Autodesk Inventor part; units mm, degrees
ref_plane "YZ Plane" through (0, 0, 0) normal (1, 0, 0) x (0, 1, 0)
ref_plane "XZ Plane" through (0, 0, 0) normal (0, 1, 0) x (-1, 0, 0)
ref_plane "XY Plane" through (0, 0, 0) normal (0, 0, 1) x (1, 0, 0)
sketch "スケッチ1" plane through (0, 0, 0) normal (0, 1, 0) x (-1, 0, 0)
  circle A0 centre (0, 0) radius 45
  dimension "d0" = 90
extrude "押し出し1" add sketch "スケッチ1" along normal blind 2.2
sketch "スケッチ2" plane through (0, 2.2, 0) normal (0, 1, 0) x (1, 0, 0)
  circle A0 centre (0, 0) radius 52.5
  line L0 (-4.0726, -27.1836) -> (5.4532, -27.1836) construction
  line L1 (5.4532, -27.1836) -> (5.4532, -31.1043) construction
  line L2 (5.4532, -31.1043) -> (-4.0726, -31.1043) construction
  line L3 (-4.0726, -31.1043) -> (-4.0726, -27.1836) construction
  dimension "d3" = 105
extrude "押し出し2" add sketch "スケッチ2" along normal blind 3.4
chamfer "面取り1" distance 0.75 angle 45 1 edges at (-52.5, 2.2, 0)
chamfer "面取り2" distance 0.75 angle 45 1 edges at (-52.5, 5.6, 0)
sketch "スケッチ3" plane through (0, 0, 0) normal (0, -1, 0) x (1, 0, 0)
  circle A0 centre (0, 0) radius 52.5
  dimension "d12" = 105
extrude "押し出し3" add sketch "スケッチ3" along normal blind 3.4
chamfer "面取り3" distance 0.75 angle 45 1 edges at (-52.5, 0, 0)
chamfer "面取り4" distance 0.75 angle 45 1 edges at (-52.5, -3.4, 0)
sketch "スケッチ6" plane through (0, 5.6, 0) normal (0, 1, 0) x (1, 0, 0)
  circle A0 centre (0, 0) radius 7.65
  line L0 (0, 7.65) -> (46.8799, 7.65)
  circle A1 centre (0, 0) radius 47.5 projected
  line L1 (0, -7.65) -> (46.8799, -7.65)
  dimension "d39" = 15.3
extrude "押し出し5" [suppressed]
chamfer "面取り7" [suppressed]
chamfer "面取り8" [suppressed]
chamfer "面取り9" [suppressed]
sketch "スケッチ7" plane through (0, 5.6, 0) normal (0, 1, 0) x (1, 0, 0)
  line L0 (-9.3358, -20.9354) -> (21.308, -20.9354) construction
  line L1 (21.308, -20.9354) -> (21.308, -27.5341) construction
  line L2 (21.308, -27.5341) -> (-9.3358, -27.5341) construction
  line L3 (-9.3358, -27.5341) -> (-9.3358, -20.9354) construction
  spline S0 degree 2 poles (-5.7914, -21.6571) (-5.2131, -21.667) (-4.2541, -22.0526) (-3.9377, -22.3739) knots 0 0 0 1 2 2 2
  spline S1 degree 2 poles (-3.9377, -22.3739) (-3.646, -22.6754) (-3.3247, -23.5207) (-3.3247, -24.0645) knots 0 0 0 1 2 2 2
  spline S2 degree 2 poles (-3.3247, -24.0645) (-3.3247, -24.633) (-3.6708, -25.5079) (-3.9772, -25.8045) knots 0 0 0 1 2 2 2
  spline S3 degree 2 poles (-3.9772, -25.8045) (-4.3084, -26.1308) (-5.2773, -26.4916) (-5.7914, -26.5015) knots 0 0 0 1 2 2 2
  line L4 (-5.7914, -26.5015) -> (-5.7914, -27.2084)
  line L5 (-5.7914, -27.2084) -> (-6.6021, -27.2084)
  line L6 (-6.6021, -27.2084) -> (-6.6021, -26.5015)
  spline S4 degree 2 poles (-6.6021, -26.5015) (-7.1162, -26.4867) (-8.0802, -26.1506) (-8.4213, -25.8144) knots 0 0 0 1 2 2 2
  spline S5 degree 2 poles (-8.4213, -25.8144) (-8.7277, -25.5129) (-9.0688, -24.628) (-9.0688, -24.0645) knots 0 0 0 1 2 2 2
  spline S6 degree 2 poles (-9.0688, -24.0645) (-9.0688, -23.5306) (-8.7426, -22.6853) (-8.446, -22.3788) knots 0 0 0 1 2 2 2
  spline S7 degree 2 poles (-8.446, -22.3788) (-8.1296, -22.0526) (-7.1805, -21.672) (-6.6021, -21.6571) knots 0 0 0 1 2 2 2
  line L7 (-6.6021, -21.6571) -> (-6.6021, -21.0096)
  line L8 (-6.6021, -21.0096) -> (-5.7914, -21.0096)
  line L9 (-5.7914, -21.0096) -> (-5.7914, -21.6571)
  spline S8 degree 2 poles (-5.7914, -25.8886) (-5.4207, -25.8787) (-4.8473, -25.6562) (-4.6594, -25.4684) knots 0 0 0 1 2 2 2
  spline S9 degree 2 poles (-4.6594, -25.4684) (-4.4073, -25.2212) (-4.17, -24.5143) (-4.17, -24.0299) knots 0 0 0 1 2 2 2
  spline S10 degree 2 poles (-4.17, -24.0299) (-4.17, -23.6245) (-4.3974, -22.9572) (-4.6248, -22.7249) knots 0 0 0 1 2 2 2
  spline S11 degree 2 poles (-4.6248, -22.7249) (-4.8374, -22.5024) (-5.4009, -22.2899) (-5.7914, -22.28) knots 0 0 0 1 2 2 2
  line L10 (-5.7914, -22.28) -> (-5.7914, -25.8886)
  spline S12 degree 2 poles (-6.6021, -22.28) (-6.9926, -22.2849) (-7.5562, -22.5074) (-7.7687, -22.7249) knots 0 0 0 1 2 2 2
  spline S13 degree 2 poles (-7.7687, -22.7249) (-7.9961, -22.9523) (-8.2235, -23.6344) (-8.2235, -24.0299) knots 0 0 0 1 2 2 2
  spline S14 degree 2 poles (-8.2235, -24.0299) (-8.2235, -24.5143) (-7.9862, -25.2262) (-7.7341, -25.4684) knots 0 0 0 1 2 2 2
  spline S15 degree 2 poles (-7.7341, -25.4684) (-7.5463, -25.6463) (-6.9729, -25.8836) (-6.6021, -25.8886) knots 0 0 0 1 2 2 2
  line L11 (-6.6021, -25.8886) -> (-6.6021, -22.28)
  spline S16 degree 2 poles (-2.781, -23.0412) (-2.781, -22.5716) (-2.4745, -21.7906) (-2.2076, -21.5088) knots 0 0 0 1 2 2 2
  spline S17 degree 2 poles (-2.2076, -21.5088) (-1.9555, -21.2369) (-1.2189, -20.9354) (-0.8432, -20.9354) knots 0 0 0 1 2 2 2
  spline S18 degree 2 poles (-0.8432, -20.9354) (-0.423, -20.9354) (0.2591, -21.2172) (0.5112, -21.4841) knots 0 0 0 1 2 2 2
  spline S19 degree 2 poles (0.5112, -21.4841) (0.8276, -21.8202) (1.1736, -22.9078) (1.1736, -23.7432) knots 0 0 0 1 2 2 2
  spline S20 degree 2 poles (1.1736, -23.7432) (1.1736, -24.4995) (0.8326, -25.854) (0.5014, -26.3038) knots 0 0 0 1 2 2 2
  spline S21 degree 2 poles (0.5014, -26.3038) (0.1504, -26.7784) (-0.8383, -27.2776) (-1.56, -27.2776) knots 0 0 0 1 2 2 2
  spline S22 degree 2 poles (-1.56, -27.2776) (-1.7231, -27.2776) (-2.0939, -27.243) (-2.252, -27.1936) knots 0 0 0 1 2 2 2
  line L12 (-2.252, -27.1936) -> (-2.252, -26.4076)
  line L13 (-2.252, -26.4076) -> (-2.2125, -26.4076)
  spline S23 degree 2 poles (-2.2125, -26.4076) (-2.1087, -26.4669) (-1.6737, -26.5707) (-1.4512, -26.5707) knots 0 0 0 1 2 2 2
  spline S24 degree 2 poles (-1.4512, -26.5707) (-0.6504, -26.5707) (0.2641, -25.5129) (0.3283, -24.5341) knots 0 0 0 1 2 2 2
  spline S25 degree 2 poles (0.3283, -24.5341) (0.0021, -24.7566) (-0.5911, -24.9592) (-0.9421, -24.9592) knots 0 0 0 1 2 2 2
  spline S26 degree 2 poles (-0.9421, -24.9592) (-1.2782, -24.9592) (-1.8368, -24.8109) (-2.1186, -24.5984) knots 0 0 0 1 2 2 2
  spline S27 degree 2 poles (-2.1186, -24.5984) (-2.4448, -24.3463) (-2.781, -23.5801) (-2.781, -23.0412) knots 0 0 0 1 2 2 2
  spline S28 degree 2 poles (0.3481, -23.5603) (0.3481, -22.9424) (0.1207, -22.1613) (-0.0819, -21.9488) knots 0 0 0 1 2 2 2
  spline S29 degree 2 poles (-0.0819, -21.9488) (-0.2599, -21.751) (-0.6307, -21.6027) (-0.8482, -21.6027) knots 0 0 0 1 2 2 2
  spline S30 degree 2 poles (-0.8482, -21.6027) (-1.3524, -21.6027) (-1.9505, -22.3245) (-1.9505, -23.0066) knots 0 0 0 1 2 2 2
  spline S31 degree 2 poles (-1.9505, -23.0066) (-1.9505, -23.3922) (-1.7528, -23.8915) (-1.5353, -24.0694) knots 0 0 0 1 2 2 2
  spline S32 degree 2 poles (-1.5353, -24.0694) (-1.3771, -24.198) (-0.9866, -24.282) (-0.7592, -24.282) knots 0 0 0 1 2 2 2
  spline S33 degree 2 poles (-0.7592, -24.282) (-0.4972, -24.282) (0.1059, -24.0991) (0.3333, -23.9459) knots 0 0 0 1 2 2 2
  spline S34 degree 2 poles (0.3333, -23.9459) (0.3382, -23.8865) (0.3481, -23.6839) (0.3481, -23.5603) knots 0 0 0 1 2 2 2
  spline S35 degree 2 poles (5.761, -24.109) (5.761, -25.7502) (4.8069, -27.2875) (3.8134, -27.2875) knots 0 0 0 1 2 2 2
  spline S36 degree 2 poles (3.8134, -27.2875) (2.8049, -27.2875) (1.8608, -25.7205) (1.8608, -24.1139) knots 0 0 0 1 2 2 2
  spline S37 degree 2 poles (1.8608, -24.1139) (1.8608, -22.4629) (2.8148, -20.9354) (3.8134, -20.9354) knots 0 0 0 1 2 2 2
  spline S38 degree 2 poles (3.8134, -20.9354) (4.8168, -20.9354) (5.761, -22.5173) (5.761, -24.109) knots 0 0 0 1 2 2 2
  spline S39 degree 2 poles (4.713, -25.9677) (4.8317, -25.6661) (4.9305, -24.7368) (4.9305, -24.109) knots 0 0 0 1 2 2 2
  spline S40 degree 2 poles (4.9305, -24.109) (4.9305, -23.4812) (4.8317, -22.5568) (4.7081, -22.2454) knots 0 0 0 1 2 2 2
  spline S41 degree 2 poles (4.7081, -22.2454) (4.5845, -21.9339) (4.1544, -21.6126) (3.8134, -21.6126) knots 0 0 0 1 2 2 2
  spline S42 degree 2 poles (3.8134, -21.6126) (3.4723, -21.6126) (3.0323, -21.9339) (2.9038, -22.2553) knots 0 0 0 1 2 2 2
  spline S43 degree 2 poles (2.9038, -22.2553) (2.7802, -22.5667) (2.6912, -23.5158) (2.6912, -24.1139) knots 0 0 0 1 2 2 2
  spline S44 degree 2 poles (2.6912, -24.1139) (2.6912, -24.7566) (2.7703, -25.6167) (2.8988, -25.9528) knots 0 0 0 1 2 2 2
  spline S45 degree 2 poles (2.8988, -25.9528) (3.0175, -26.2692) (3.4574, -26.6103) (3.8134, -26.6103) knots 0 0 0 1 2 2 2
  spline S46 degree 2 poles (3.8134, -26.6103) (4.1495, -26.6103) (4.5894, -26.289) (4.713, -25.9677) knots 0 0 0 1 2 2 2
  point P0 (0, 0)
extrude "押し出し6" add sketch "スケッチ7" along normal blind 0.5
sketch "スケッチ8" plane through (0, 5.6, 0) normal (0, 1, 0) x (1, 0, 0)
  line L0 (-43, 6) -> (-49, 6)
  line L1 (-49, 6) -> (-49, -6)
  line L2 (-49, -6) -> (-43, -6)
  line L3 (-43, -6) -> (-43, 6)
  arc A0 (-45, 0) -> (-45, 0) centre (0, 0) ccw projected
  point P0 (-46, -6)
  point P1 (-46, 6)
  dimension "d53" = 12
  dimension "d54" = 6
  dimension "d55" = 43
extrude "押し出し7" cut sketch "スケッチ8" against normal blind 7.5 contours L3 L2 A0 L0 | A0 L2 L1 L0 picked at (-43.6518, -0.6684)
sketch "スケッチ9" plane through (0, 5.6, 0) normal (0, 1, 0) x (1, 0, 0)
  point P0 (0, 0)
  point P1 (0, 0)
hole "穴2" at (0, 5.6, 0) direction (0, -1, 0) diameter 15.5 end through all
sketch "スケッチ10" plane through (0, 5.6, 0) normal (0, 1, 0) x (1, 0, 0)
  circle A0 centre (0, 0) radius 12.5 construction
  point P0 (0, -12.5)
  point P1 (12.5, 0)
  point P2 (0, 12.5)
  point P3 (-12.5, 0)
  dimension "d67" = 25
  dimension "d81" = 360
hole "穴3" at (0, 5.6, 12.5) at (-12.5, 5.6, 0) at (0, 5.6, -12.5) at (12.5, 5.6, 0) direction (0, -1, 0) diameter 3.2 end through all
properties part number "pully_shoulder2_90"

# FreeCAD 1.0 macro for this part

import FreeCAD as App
import Part
import Sketcher
Q = App.Units.Quantity


def edges_at(feature, points):
    """Names of the edges that pass closest to the given points."""
    edges = feature.Shape.Edges
    near = lambda p: min(range(len(edges)), key=lambda i: edges[i].distToShape(Part.Vertex(*p))[0])
    return sorted({f"Edge{near(p) + 1}" for p in points})

doc = App.newDocument("Part")
body = doc.addObject("PartDesign::Body", "Body")

sketch1 = body.newObject("Sketcher::SketchObject", "Sketch")
sketch1.AttachmentSupport = (doc.getObject("XZ_Plane"), [""])
sketch1.MapMode = "FlatFace"
sketch1.addGeometry(Part.Circle(App.Vector(0, 0, 0), App.Vector(0, 0, 1), 45), False)
sketch1.addConstraint([
    Sketcher.Constraint("Coincident", 0, 3, -1, 1),
    Sketcher.Constraint("Diameter", 0, Q("90 mm")),
])
pad1 = body.newObject("PartDesign::Pad", "Pad")
pad1.Profile = sketch1
pad1.Length = 2.2
pad1.Reversed = True

sketch2 = body.newObject("Sketcher::SketchObject", "Sketch001")
sketch2.AttachmentSupport = (doc.getObject("XZ_Plane"), [""])
sketch2.MapMode = "FlatFace"
sketch2.AttachmentOffset = App.Placement(App.Vector(0, 0, -2.2), App.Rotation())
sketch2.addGeometry(Part.Circle(App.Vector(0, 0, 0), App.Vector(0, 0, 1), 52.5), False)
sketch2.addConstraint([
    Sketcher.Constraint("Coincident", 0, 3, -1, 1),
    Sketcher.Constraint("Diameter", 0, Q("105 mm")),
])
pad2 = body.newObject("PartDesign::Pad", "Pad001")
pad2.Profile = sketch2
pad2.Length = 3.4
pad2.Reversed = True
doc.recompute()

chamfer = body.newObject("PartDesign::Chamfer", "Chamfer")
chamfer.Base = (pad2, edges_at(pad2, [(-52.5, 2.2, 0)]))
chamfer.Size = 0.75
doc.recompute()

chamfer2 = body.newObject("PartDesign::Chamfer", "Chamfer001")
chamfer2.Base = (chamfer, edges_at(chamfer, [(-52.5, 5.6, 0)]))
chamfer2.Size = 0.75

sketch3 = body.newObject("Sketcher::SketchObject", "Sketch002")
sketch3.AttachmentSupport = (doc.getObject("XZ_Plane"), [""])
sketch3.MapMode = "FlatFace"
sketch3.addGeometry(Part.Circle(App.Vector(0, 0, 0), App.Vector(0, 0, 1), 52.5), False)
sketch3.addConstraint([
    Sketcher.Constraint("Coincident", 0, 3, -1, 1),
    Sketcher.Constraint("Diameter", 0, Q("105 mm")),
])
pad3 = body.newObject("PartDesign::Pad", "Pad002")
pad3.Profile = sketch3
pad3.Length = 3.4
doc.recompute()

chamfer3 = body.newObject("PartDesign::Chamfer", "Chamfer002")
chamfer3.Base = (pad3, edges_at(pad3, [(-52.5, 0, 0)]))
chamfer3.Size = 0.75
doc.recompute()

chamfer4 = body.newObject("PartDesign::Chamfer", "Chamfer003")
chamfer4.Base = (chamfer3, edges_at(chamfer3, [(-52.5, -3.4, 0)]))
chamfer4.Size = 0.75

sketch4 = body.newObject("Sketcher::SketchObject", "Sketch003")
sketch4.AttachmentSupport = (doc.getObject("XZ_Plane"), [""])
sketch4.MapMode = "FlatFace"
sketch4.AttachmentOffset = App.Placement(App.Vector(0, 0, -5.6), App.Rotation())
sketch4.addGeometry([
    Part.BSplineCurve([App.Vector(-5.7914, 21.6571, 0), App.Vector(-5.2131, 21.667, 0), App.Vector(-4.2541, 22.0526, 0), App.Vector(-3.9377, 22.3739, 0)], [3, 1, 3], [0, 1, 2], False, 2, [1, 1, 1, 1], False),
    Part.LineSegment(App.Vector(-5.7914, 21.6571, 0), App.Vector(-5.7914, 21.0096, 0)),
    Part.LineSegment(App.Vector(-5.7914, 21.0096, 0), App.Vector(-6.6021, 21.0096, 0)),
    Part.LineSegment(App.Vector(-6.6021, 21.0096, 0), App.Vector(-6.6021, 21.6571, 0)),
    Part.BSplineCurve([App.Vector(-8.446, 22.3788, 0), App.Vector(-8.1296, 22.0526, 0), App.Vector(-7.1805, 21.672, 0), App.Vector(-6.6021, 21.6571, 0)], [3, 1, 3], [0, 1, 2], False, 2, [1, 1, 1, 1], False),
    Part.BSplineCurve([App.Vector(-9.0688, 24.0645, 0), App.Vector(-9.0688, 23.5306, 0), App.Vector(-8.7426, 22.6853, 0), App.Vector(-8.446, 22.3788, 0)], [3, 1, 3], [0, 1, 2], False, 2, [1, 1, 1, 1], False),
    Part.BSplineCurve([App.Vector(-8.4213, 25.8144, 0), App.Vector(-8.7277, 25.5129, 0), App.Vector(-9.0688, 24.628, 0), App.Vector(-9.0688, 24.0645, 0)], [3, 1, 3], [0, 1, 2], False, 2, [1, 1, 1, 1], False),
    Part.BSplineCurve([App.Vector(-6.6021, 26.5015, 0), App.Vector(-7.1162, 26.4867, 0), App.Vector(-8.0802, 26.1506, 0), App.Vector(-8.4213, 25.8144, 0)], [3, 1, 3], [0, 1, 2], False, 2, [1, 1, 1, 1], False),
    Part.LineSegment(App.Vector(-6.6021, 26.5015, 0), App.Vector(-6.6021, 27.2084, 0)),
    Part.LineSegment(App.Vector(-6.6021, 27.2084, 0), App.Vector(-5.7914, 27.2084, 0)),
    Part.LineSegment(App.Vector(-5.7914, 27.2084, 0), App.Vector(-5.7914, 26.5015, 0)),
    Part.BSplineCurve([App.Vector(-3.9772, 25.8045, 0), App.Vector(-4.3084, 26.1308, 0), App.Vector(-5.2773, 26.4916, 0), App.Vector(-5.7914, 26.5015, 0)], [3, 1, 3], [0, 1, 2], False, 2, [1, 1, 1, 1], False),
    Part.BSplineCurve([App.Vector(-3.3247, 24.0645, 0), App.Vector(-3.3247, 24.633, 0), App.Vector(-3.6708, 25.5079, 0), App.Vector(-3.9772, 25.8045, 0)], [3, 1, 3], [0, 1, 2], False, 2, [1, 1, 1, 1], False),
    Part.BSplineCurve([App.Vector(-3.9377, 22.3739, 0), App.Vector(-3.646, 22.6754, 0), App.Vector(-3.3247, 23.5207, 0), App.Vector(-3.3247, 24.0645, 0)], [3, 1, 3], [0, 1, 2], False, 2, [1, 1, 1, 1], False),
    Part.BSplineCurve([App.Vector(-6.6021, 22.28, 0), App.Vector(-6.9926, 22.2849, 0), App.Vector(-7.5562, 22.5074, 0), App.Vector(-7.7687, 22.7249, 0)], [3, 1, 3], [0, 1, 2], False, 2, [1, 1, 1, 1], False),
    Part.LineSegment(App.Vector(-6.6021, 22.28, 0), App.Vector(-6.6021, 25.8886, 0)),
    Part.BSplineCurve([App.Vector(-7.7341, 25.4684, 0), App.Vector(-7.5463, 25.6463, 0), App.Vector(-6.9729, 25.8836, 0), App.Vector(-6.6021, 25.8886, 0)], [3, 1, 3], [0, 1, 2], False, 2, [1, 1, 1, 1], False),
    Part.BSplineCurve([App.Vector(-8.2235, 24.0299, 0), App.Vector(-8.2235, 24.5143, 0), App.Vector(-7.9862, 25.2262, 0), App.Vector(-7.7341, 25.4684, 0)], [3, 1, 3], [0, 1, 2], False, 2, [1, 1, 1, 1], False),
    Part.BSplineCurve([App.Vector(-7.7687, 22.7249, 0), App.Vector(-7.9961, 22.9523, 0), App.Vector(-8.2235, 23.6344, 0), App.Vector(-8.2235, 24.0299, 0)], [3, 1, 3], [0, 1, 2], False, 2, [1, 1, 1, 1], False),
    Part.BSplineCurve([App.Vector(-5.7914, 25.8886, 0), App.Vector(-5.4207, 25.8787, 0), App.Vector(-4.8473, 25.6562, 0), App.Vector(-4.6594, 25.4684, 0)], [3, 1, 3], [0, 1, 2], False, 2, [1, 1, 1, 1], False),
    Part.LineSegment(App.Vector(-5.7914, 25.8886, 0), App.Vector(-5.7914, 22.28, 0)),
    Part.BSplineCurve([App.Vector(-4.6248, 22.7249, 0), App.Vector(-4.8374, 22.5024, 0), App.Vector(-5.4009, 22.2899, 0), App.Vector(-5.7914, 22.28, 0)], [3, 1, 3], [0, 1, 2], False, 2, [1, 1, 1, 1], False),
    Part.BSplineCurve([App.Vector(-4.17, 24.0299, 0), App.Vector(-4.17, 23.6245, 0), App.Vector(-4.3974, 22.9572, 0), App.Vector(-4.6248, 22.7249, 0)], [3, 1, 3], [0, 1, 2], False, 2, [1, 1, 1, 1], False),
    Part.BSplineCurve([App.Vector(-4.6594, 25.4684, 0), App.Vector(-4.4073, 25.2212, 0), App.Vector(-4.17, 24.5143, 0), App.Vector(-4.17, 24.0299, 0)], [3, 1, 3], [0, 1, 2], False, 2, [1, 1, 1, 1], False),
    Part.BSplineCurve([App.Vector(-2.781, 23.0412, 0), App.Vector(-2.781, 22.5716, 0), App.Vector(-2.4745, 21.7906, 0), App.Vector(-2.2076, 21.5088, 0)], [3, 1, 3], [0, 1, 2], False, 2, [1, 1, 1, 1], False),
    Part.BSplineCurve([App.Vector(-2.1186, 24.5984, 0), App.Vector(-2.4448, 24.3463, 0), App.Vector(-2.781, 23.5801, 0), App.Vector(-2.781, 23.0412, 0)], [3, 1, 3], [0, 1, 2], False, 2, [1, 1, 1, 1], False),
    Part.BSplineCurve([App.Vector(-0.9421, 24.9592, 0), App.Vector(-1.2782, 24.9592, 0), App.Vector(-1.8368, 24.8109, 0), App.Vector(-2.1186, 24.5984, 0)], [3, 1, 3], [0, 1, 2], False, 2, [1, 1, 1, 1], False),
    Part.BSplineCurve([App.Vector(0.3283, 24.5341, 0), App.Vector(0.0021, 24.7566, 0), App.Vector(-0.5911, 24.9592, 0), App.Vector(-0.9421, 24.9592, 0)], [3, 1, 3], [0, 1, 2], False, 2, [1, 1, 1, 1], False),
    Part.BSplineCurve([App.Vector(-1.4512, 26.5707, 0), App.Vector(-0.6504, 26.5707, 0), App.Vector(0.2641, 25.5129, 0), App.Vector(0.3283, 24.5341, 0)], [3, 1, 3], [0, 1, 2], False, 2, [1, 1, 1, 1], False),
    Part.BSplineCurve([App.Vector(-2.2125, 26.4076, 0), App.Vector(-2.1087, 26.4669, 0), App.Vector(-1.6737, 26.5707, 0), App.Vector(-1.4512, 26.5707, 0)], [3, 1, 3], [0, 1, 2], False, 2, [1, 1, 1, 1], False),
    Part.LineSegment(App.Vector(-2.2125, 26.4076, 0), App.Vector(-2.252, 26.4076, 0)),
    Part.LineSegment(App.Vector(-2.252, 26.4076, 0), App.Vector(-2.252, 27.1936, 0)),
    Part.BSplineCurve([App.Vector(-1.56, 27.2776, 0), App.Vector(-1.7231, 27.2776, 0), App.Vector(-2.0939, 27.243, 0), App.Vector(-2.252, 27.1936, 0)], [3, 1, 3], [0, 1, 2], False, 2, [1, 1, 1, 1], False),
    Part.BSplineCurve([App.Vector(0.5014, 26.3038, 0), App.Vector(0.1504, 26.7784, 0), App.Vector(-0.8383, 27.2776, 0), App.Vector(-1.56, 27.2776, 0)], [3, 1, 3], [0, 1, 2], False, 2, [1, 1, 1, 1], False),
    Part.BSplineCurve([App.Vector(1.1736, 23.7432, 0), App.Vector(1.1736, 24.4995, 0), App.Vector(0.8326, 25.854, 0), App.Vector(0.5014, 26.3038, 0)], [3, 1, 3], [0, 1, 2], False, 2, [1, 1, 1, 1], False),
    Part.BSplineCurve([App.Vector(0.5112, 21.4841, 0), App.Vector(0.8276, 21.8202, 0), App.Vector(1.1736, 22.9078, 0), App.Vector(1.1736, 23.7432, 0)], [3, 1, 3], [0, 1, 2], False, 2, [1, 1, 1, 1], False),
    Part.BSplineCurve([App.Vector(-0.8432, 20.9354, 0), App.Vector(-0.423, 20.9354, 0), App.Vector(0.2591, 21.2172, 0), App.Vector(0.5112, 21.4841, 0)], [3, 1, 3], [0, 1, 2], False, 2, [1, 1, 1, 1], False),
    Part.BSplineCurve([App.Vector(-2.2076, 21.5088, 0), App.Vector(-1.9555, 21.2369, 0), App.Vector(-1.2189, 20.9354, 0), App.Vector(-0.8432, 20.9354, 0)], [3, 1, 3], [0, 1, 2], False, 2, [1, 1, 1, 1], False),
    Part.BSplineCurve([App.Vector(0.3481, 23.5603, 0), App.Vector(0.3481, 22.9424, 0), App.Vector(0.1207, 22.1613, 0), App.Vector(-0.0819, 21.9488, 0)], [3, 1, 3], [0, 1, 2], False, 2, [1, 1, 1, 1], False),
    Part.BSplineCurve([App.Vector(0.3333, 23.9459, 0), App.Vector(0.3382, 23.8865, 0), App.Vector(0.3481, 23.6839, 0), App.Vector(0.3481, 23.5603, 0)], [3, 1, 3], [0, 1, 2], False, 2, [1, 1, 1, 1], False),
    Part.BSplineCurve([App.Vector(-0.7592, 24.282, 0), App.Vector(-0.4972, 24.282, 0), App.Vector(0.1059, 24.0991, 0), App.Vector(0.3333, 23.9459, 0)], [3, 1, 3], [0, 1, 2], False, 2, [1, 1, 1, 1], False),
    Part.BSplineCurve([App.Vector(-1.5353, 24.0694, 0), App.Vector(-1.3771, 24.198, 0), App.Vector(-0.9866, 24.282, 0), App.Vector(-0.7592, 24.282, 0)], [3, 1, 3], [0, 1, 2], False, 2, [1, 1, 1, 1], False),
    Part.BSplineCurve([App.Vector(-1.9505, 23.0066, 0), App.Vector(-1.9505, 23.3922, 0), App.Vector(-1.7528, 23.8915, 0), App.Vector(-1.5353, 24.0694, 0)], [3, 1, 3], [0, 1, 2], False, 2, [1, 1, 1, 1], False),
    Part.BSplineCurve([App.Vector(-0.8482, 21.6027, 0), App.Vector(-1.3524, 21.6027, 0), App.Vector(-1.9505, 22.3245, 0), App.Vector(-1.9505, 23.0066, 0)], [3, 1, 3], [0, 1, 2], False, 2, [1, 1, 1, 1], False),
    Part.BSplineCurve([App.Vector(-0.0819, 21.9488, 0), App.Vector(-0.2599, 21.751, 0), App.Vector(-0.6307, 21.6027, 0), App.Vector(-0.8482, 21.6027, 0)], [3, 1, 3], [0, 1, 2], False, 2, [1, 1, 1, 1], False),
    Part.BSplineCurve([App.Vector(5.761, 24.109, 0), App.Vector(5.761, 25.7502, 0), App.Vector(4.8069, 27.2875, 0), App.Vector(3.8134, 27.2875, 0)], [3, 1, 3], [0, 1, 2], False, 2, [1, 1, 1, 1], False),
    Part.BSplineCurve([App.Vector(3.8134, 20.9354, 0), App.Vector(4.8168, 20.9354, 0), App.Vector(5.761, 22.5173, 0), App.Vector(5.761, 24.109, 0)], [3, 1, 3], [0, 1, 2], False, 2, [1, 1, 1, 1], False),
    Part.BSplineCurve([App.Vector(1.8608, 24.1139, 0), App.Vector(1.8608, 22.4629, 0), App.Vector(2.8148, 20.9354, 0), App.Vector(3.8134, 20.9354, 0)], [3, 1, 3], [0, 1, 2], False, 2, [1, 1, 1, 1], False),
    Part.BSplineCurve([App.Vector(3.8134, 27.2875, 0), App.Vector(2.8049, 27.2875, 0), App.Vector(1.8608, 25.7205, 0), App.Vector(1.8608, 24.1139, 0)], [3, 1, 3], [0, 1, 2], False, 2, [1, 1, 1, 1], False),
    Part.BSplineCurve([App.Vector(4.713, 25.9677, 0), App.Vector(4.8317, 25.6661, 0), App.Vector(4.9305, 24.7368, 0), App.Vector(4.9305, 24.109, 0)], [3, 1, 3], [0, 1, 2], False, 2, [1, 1, 1, 1], False),
    Part.BSplineCurve([App.Vector(3.8134, 26.6103, 0), App.Vector(4.1495, 26.6103, 0), App.Vector(4.5894, 26.289, 0), App.Vector(4.713, 25.9677, 0)], [3, 1, 3], [0, 1, 2], False, 2, [1, 1, 1, 1], False),
    Part.BSplineCurve([App.Vector(2.8988, 25.9528, 0), App.Vector(3.0175, 26.2692, 0), App.Vector(3.4574, 26.6103, 0), App.Vector(3.8134, 26.6103, 0)], [3, 1, 3], [0, 1, 2], False, 2, [1, 1, 1, 1], False),
    Part.BSplineCurve([App.Vector(2.6912, 24.1139, 0), App.Vector(2.6912, 24.7566, 0), App.Vector(2.7703, 25.6167, 0), App.Vector(2.8988, 25.9528, 0)], [3, 1, 3], [0, 1, 2], False, 2, [1, 1, 1, 1], False),
    Part.BSplineCurve([App.Vector(2.9038, 22.2553, 0), App.Vector(2.7802, 22.5667, 0), App.Vector(2.6912, 23.5158, 0), App.Vector(2.6912, 24.1139, 0)], [3, 1, 3], [0, 1, 2], False, 2, [1, 1, 1, 1], False),
    Part.BSplineCurve([App.Vector(3.8134, 21.6126, 0), App.Vector(3.4723, 21.6126, 0), App.Vector(3.0323, 21.9339, 0), App.Vector(2.9038, 22.2553, 0)], [3, 1, 3], [0, 1, 2], False, 2, [1, 1, 1, 1], False),
    Part.BSplineCurve([App.Vector(4.7081, 22.2454, 0), App.Vector(4.5845, 21.9339, 0), App.Vector(4.1544, 21.6126, 0), App.Vector(3.8134, 21.6126, 0)], [3, 1, 3], [0, 1, 2], False, 2, [1, 1, 1, 1], False),
    Part.BSplineCurve([App.Vector(4.9305, 24.109, 0), App.Vector(4.9305, 23.4812, 0), App.Vector(4.8317, 22.5568, 0), App.Vector(4.7081, 22.2454, 0)], [3, 1, 3], [0, 1, 2], False, 2, [1, 1, 1, 1], False),
], False)
sketch4.addConstraint([
    Sketcher.Constraint("Block", 0),
    Sketcher.Constraint("Block", 4),
    Sketcher.Constraint("Block", 5),
    Sketcher.Constraint("Block", 6),
    Sketcher.Constraint("Block", 7),
    Sketcher.Constraint("Block", 11),
    Sketcher.Constraint("Block", 12),
    Sketcher.Constraint("Block", 13),
    Sketcher.Constraint("Block", 14),
    Sketcher.Constraint("Block", 16),
    Sketcher.Constraint("Block", 17),
    Sketcher.Constraint("Block", 18),
    Sketcher.Constraint("Block", 19),
    Sketcher.Constraint("Block", 21),
    Sketcher.Constraint("Block", 22),
    Sketcher.Constraint("Block", 23),
    Sketcher.Constraint("Block", 24),
    Sketcher.Constraint("Block", 25),
    Sketcher.Constraint("Block", 26),
    Sketcher.Constraint("Block", 27),
    Sketcher.Constraint("Block", 28),
    Sketcher.Constraint("Block", 29),
    Sketcher.Constraint("Block", 32),
    Sketcher.Constraint("Block", 33),
    Sketcher.Constraint("Block", 34),
    Sketcher.Constraint("Block", 35),
    Sketcher.Constraint("Block", 36),
    Sketcher.Constraint("Block", 37),
    Sketcher.Constraint("Block", 38),
    Sketcher.Constraint("Block", 39),
    Sketcher.Constraint("Block", 40),
    Sketcher.Constraint("Block", 41),
    Sketcher.Constraint("Block", 42),
    Sketcher.Constraint("Block", 43),
    Sketcher.Constraint("Block", 44),
    Sketcher.Constraint("Block", 45),
    Sketcher.Constraint("Block", 46),
    Sketcher.Constraint("Block", 47),
    Sketcher.Constraint("Block", 48),
    Sketcher.Constraint("Block", 49),
    Sketcher.Constraint("Block", 50),
    Sketcher.Constraint("Block", 51),
    Sketcher.Constraint("Block", 52),
    Sketcher.Constraint("Block", 53),
    Sketcher.Constraint("Block", 54),
    Sketcher.Constraint("Block", 55),
    Sketcher.Constraint("Block", 56),
    Sketcher.Constraint("Coincident", 0, 1, 1, 1),
    Sketcher.Constraint("Coincident", 1, 2, 2, 1),
    Sketcher.Constraint("Coincident", 2, 2, 3, 1),
    Sketcher.Constraint("Coincident", 3, 2, 4, 2),
    Sketcher.Constraint("Coincident", 7, 1, 8, 1),
    Sketcher.Constraint("Coincident", 8, 2, 9, 1),
    Sketcher.Constraint("Coincident", 9, 2, 10, 1),
    Sketcher.Constraint("Coincident", 10, 2, 11, 2),
    Sketcher.Constraint("Coincident", 14, 1, 15, 1),
    Sketcher.Constraint("Coincident", 15, 2, 16, 2),
    Sketcher.Constraint("Coincident", 19, 1, 20, 1),
    Sketcher.Constraint("Coincident", 20, 2, 21, 2),
    Sketcher.Constraint("Coincident", 29, 1, 30, 1),
    Sketcher.Constraint("Coincident", 30, 2, 31, 1),
    Sketcher.Constraint("Coincident", 31, 2, 32, 2),
    Sketcher.Constraint("Vertical", 1),
    Sketcher.Constraint("Horizontal", 2),
    Sketcher.Constraint("Vertical", 3),
    Sketcher.Constraint("Vertical", 8),
    Sketcher.Constraint("Horizontal", 9),
    Sketcher.Constraint("Vertical", 10),
    Sketcher.Constraint("Horizontal", 30),
    Sketcher.Constraint("Vertical", 31),
    Sketcher.Constraint("DistanceY", 8, 1, 8, 2, Q("0.707 mm")),
    Sketcher.Constraint("DistanceY", 1, 2, 1, 1, Q("0.6475 mm")),
])
pad4 = body.newObject("PartDesign::Pad", "Pad003")
pad4.Profile = sketch4
pad4.Length = 0.5
pad4.Reversed = True

sketch5 = body.newObject("Sketcher::SketchObject", "Sketch004")
sketch5.AttachmentSupport = (doc.getObject("XZ_Plane"), [""])
sketch5.MapMode = "FlatFace"
sketch5.AttachmentOffset = App.Placement(App.Vector(0, 0, -5.6), App.Rotation())
sketch5.addGeometry([
    Part.LineSegment(App.Vector(-43, 6, 0), App.Vector(-43, -6, 0)),
    Part.LineSegment(App.Vector(-43, -6, 0), App.Vector(-49, -6, 0)),
    Part.LineSegment(App.Vector(-49, -6, 0), App.Vector(-49, 6, 0)),
    Part.LineSegment(App.Vector(-49, 6, 0), App.Vector(-43, 6, 0)),
], False)
sketch5.addConstraint([
    Sketcher.Constraint("Coincident", 0, 2, 1, 1),
    Sketcher.Constraint("Coincident", 1, 2, 2, 1),
    Sketcher.Constraint("Coincident", 2, 2, 3, 1),
    Sketcher.Constraint("Coincident", 3, 2, 0, 1),
    Sketcher.Constraint("Vertical", 0),
    Sketcher.Constraint("Horizontal", 1),
    Sketcher.Constraint("Vertical", 2),
    Sketcher.Constraint("Horizontal", 3),
    Sketcher.Constraint("DistanceX", 1, 2, 1, 1, Q("6 mm")),
    Sketcher.Constraint("DistanceY", 0, 2, 0, 1, Q("12 mm")),
    Sketcher.Constraint("DistanceX", 0, 2, -1, 1, Q("43 mm")),
    Sketcher.Constraint("DistanceY", 0, 2, -1, 1, Q("6 mm")),
])
pocket1 = body.newObject("PartDesign::Pocket", "Pocket")
pocket1.Profile = sketch5
pocket1.Length = 7.5
pocket1.Reversed = True

sketch6 = body.newObject("Sketcher::SketchObject", "Sketch005")
sketch6.AttachmentSupport = (doc.getObject("XZ_Plane"), [""])
sketch6.MapMode = "FlatFace"
sketch6.AttachmentOffset = App.Placement(App.Vector(0, 0, -5.6), App.Rotation())
sketch6.addGeometry(Part.Circle(App.Vector(0, 0, 0), App.Vector(0, 0, 1), 7.75), False)
sketch6.addConstraint([
    Sketcher.Constraint("Coincident", 0, 3, -1, 1),
    Sketcher.Constraint("Diameter", 0, Q("15.5 mm")),
])
doc.recompute()
hole = body.newObject("PartDesign::Hole", "Hole")
hole.Profile = sketch6
hole.ThreadType = "None"
hole.Diameter = 15.5
hole.DepthType = "ThroughAll"
hole.Reversed = True

sketch7 = body.newObject("Sketcher::SketchObject", "Sketch006")
sketch7.AttachmentSupport = (doc.getObject("XZ_Plane"), [""])
sketch7.MapMode = "FlatFace"
sketch7.AttachmentOffset = App.Placement(App.Vector(0, 0, -5.6), App.Rotation())
sketch7.addGeometry([
    Part.Circle(App.Vector(0, 12.5, 0), App.Vector(0, 0, 1), 1.6),
    Part.Circle(App.Vector(-12.5, 0, 0), App.Vector(0, 0, 1), 1.6),
    Part.Circle(App.Vector(0, -12.5, 0), App.Vector(0, 0, 1), 1.6),
    Part.Circle(App.Vector(12.5, 0, 0), App.Vector(0, 0, 1), 1.6),
], False)
sketch7.addConstraint([
    Sketcher.Constraint("Equal", 0, 1),
    Sketcher.Constraint("Equal", 1, 2),
    Sketcher.Constraint("Equal", 2, 3),
    Sketcher.Constraint("Symmetric", 0, 3, 2, 3, -1, 1),
    Sketcher.Constraint("Symmetric", 1, 3, 3, 3, -1, 1),
    Sketcher.Constraint("PointOnObject", 0, 3, -2),
    Sketcher.Constraint("PointOnObject", 1, 3, -1),
    Sketcher.Constraint("Diameter", 0, Q("3.2 mm")),
    Sketcher.Constraint("DistanceY", 2, 3, 0, 3, Q("25 mm")),
    Sketcher.Constraint("DistanceX", 1, 3, 3, 3, Q("25 mm")),
])
doc.recompute()
hole2 = body.newObject("PartDesign::Hole", "Hole001")
hole2.Profile = sketch7
hole2.ThreadType = "None"
hole2.Diameter = 3.2
hole2.DepthType = "ThroughAll"
hole2.Reversed = True

doc.recompute()
